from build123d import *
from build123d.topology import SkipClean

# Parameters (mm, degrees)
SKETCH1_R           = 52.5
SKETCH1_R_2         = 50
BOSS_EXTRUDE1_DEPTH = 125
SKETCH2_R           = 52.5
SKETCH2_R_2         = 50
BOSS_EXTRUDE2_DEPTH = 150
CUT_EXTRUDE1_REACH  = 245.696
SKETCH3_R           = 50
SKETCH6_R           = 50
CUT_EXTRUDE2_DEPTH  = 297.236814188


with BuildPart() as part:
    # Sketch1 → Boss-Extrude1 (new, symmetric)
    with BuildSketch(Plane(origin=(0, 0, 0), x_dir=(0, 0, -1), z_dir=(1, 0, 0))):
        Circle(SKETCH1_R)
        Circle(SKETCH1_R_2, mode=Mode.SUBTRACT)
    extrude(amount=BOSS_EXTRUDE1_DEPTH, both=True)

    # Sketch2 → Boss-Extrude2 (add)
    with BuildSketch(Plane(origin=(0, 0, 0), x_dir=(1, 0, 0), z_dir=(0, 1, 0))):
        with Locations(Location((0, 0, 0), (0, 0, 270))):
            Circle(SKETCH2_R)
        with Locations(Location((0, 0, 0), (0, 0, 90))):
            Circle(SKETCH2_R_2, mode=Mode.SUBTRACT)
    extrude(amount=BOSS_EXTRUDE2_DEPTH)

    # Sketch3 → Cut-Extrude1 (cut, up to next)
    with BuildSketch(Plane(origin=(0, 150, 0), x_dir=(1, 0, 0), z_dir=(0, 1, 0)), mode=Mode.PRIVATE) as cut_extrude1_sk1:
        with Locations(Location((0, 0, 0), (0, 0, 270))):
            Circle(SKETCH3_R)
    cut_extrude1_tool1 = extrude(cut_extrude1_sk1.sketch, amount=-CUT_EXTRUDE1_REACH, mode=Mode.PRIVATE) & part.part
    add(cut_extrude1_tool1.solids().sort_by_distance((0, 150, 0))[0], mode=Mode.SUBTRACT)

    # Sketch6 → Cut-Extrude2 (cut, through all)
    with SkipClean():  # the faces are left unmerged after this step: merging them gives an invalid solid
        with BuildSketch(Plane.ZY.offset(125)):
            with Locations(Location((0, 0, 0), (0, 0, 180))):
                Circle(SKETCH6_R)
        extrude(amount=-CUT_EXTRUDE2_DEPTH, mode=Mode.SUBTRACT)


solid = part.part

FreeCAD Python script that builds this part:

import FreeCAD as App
import Part
import Sketcher

V = App.Vector

doc = App.newDocument("Part")
body = doc.addObject("PartDesign::Body", "Body")

sketch1 = body.newObject("Sketcher::SketchObject", "Sketch")
sketch1.AttachmentSupport = (doc.getObject("YZ_Plane"), [""])
sketch1.MapMode = "FlatFace"
sketch1.addGeometry(Part.Circle(V(0, 0, 0), V(0, 0, 1), 52), False)
sketch1.addGeometry(Part.Circle(V(0, 0, 0), V(0, 0, 1), 50), False)
sketch1.addConstraint(Sketcher.Constraint("Coincident", 0, 3, -1, 1))
sketch1.addConstraint(Sketcher.Constraint("Coincident", 1, 3, -1, 1))
sketch1.addConstraint(Sketcher.Constraint("Diameter", 0, 105.0))
sketch1.addConstraint(Sketcher.Constraint("Diameter", 1, 100.0))
pad1 = body.newObject("PartDesign::Pad", "Pad")
pad1.Profile = sketch1
pad1.Length = 250
pad1.Midplane = True

sketch2 = body.newObject("Sketcher::SketchObject", "Sketch001")
sketch2.AttachmentSupport = (doc.getObject("XZ_Plane"), [""])
sketch2.MapMode = "FlatFace"
sketch2.addGeometry(Part.Circle(V(0, 0, 0), V(0, 0, 1), 52), False)
sketch2.addGeometry(Part.Circle(V(0, 0, 0), V(0, 0, 1), 50), False)
sketch2.addConstraint(Sketcher.Constraint("Coincident", 0, 3, -1, 1))
sketch2.addConstraint(Sketcher.Constraint("Coincident", 1, 3, -1, 1))
sketch2.addConstraint(Sketcher.Constraint("Diameter", 0, 105.0))
sketch2.addConstraint(Sketcher.Constraint("Diameter", 1, 100.0))
pad2 = body.newObject("PartDesign::Pad", "Pad001")
pad2.Profile = sketch2
pad2.Length = 150
pad2.Reversed = True

sketch3 = body.newObject("Sketcher::SketchObject", "Sketch002")
sketch3.AttachmentSupport = (doc.getObject("XZ_Plane"), [""])
sketch3.MapMode = "FlatFace"
sketch3.AttachmentOffset = App.Placement(V(0, 0, -150), App.Rotation())
sketch3.addGeometry(Part.Circle(V(0, 0, 0), V(0, 0, 1), 50), False)
sketch3.addConstraint(Sketcher.Constraint("Coincident", 0, 3, -1, 1))
sketch3.addConstraint(Sketcher.Constraint("Diameter", 0, 100.0))
pocket1 = body.newObject("PartDesign::Pocket", "Pocket")
pocket1.Profile = sketch3
pocket1.Length = 150
pocket1.Reversed = True

sketch4 = body.newObject("Sketcher::SketchObject", "Sketch003")
sketch4.AttachmentSupport = (doc.getObject("YZ_Plane"), [""])
sketch4.MapMode = "FlatFace"
sketch4.AttachmentOffset = App.Placement(V(0, 0, -125), App.Rotation())
sketch4.addGeometry(Part.Circle(V(0, 0, 0), V(0, 0, 1), 50), False)
sketch4.addConstraint(Sketcher.Constraint("Coincident", 0, 3, -1, 1))
sketch4.addConstraint(Sketcher.Constraint("Diameter", 0, 100.0))
pocket2 = body.newObject("PartDesign::Pocket", "Pocket001")
pocket2.Profile = sketch4
pocket2.Type = "ThroughAll"
pocket2.Reversed = True

doc.recompute()
